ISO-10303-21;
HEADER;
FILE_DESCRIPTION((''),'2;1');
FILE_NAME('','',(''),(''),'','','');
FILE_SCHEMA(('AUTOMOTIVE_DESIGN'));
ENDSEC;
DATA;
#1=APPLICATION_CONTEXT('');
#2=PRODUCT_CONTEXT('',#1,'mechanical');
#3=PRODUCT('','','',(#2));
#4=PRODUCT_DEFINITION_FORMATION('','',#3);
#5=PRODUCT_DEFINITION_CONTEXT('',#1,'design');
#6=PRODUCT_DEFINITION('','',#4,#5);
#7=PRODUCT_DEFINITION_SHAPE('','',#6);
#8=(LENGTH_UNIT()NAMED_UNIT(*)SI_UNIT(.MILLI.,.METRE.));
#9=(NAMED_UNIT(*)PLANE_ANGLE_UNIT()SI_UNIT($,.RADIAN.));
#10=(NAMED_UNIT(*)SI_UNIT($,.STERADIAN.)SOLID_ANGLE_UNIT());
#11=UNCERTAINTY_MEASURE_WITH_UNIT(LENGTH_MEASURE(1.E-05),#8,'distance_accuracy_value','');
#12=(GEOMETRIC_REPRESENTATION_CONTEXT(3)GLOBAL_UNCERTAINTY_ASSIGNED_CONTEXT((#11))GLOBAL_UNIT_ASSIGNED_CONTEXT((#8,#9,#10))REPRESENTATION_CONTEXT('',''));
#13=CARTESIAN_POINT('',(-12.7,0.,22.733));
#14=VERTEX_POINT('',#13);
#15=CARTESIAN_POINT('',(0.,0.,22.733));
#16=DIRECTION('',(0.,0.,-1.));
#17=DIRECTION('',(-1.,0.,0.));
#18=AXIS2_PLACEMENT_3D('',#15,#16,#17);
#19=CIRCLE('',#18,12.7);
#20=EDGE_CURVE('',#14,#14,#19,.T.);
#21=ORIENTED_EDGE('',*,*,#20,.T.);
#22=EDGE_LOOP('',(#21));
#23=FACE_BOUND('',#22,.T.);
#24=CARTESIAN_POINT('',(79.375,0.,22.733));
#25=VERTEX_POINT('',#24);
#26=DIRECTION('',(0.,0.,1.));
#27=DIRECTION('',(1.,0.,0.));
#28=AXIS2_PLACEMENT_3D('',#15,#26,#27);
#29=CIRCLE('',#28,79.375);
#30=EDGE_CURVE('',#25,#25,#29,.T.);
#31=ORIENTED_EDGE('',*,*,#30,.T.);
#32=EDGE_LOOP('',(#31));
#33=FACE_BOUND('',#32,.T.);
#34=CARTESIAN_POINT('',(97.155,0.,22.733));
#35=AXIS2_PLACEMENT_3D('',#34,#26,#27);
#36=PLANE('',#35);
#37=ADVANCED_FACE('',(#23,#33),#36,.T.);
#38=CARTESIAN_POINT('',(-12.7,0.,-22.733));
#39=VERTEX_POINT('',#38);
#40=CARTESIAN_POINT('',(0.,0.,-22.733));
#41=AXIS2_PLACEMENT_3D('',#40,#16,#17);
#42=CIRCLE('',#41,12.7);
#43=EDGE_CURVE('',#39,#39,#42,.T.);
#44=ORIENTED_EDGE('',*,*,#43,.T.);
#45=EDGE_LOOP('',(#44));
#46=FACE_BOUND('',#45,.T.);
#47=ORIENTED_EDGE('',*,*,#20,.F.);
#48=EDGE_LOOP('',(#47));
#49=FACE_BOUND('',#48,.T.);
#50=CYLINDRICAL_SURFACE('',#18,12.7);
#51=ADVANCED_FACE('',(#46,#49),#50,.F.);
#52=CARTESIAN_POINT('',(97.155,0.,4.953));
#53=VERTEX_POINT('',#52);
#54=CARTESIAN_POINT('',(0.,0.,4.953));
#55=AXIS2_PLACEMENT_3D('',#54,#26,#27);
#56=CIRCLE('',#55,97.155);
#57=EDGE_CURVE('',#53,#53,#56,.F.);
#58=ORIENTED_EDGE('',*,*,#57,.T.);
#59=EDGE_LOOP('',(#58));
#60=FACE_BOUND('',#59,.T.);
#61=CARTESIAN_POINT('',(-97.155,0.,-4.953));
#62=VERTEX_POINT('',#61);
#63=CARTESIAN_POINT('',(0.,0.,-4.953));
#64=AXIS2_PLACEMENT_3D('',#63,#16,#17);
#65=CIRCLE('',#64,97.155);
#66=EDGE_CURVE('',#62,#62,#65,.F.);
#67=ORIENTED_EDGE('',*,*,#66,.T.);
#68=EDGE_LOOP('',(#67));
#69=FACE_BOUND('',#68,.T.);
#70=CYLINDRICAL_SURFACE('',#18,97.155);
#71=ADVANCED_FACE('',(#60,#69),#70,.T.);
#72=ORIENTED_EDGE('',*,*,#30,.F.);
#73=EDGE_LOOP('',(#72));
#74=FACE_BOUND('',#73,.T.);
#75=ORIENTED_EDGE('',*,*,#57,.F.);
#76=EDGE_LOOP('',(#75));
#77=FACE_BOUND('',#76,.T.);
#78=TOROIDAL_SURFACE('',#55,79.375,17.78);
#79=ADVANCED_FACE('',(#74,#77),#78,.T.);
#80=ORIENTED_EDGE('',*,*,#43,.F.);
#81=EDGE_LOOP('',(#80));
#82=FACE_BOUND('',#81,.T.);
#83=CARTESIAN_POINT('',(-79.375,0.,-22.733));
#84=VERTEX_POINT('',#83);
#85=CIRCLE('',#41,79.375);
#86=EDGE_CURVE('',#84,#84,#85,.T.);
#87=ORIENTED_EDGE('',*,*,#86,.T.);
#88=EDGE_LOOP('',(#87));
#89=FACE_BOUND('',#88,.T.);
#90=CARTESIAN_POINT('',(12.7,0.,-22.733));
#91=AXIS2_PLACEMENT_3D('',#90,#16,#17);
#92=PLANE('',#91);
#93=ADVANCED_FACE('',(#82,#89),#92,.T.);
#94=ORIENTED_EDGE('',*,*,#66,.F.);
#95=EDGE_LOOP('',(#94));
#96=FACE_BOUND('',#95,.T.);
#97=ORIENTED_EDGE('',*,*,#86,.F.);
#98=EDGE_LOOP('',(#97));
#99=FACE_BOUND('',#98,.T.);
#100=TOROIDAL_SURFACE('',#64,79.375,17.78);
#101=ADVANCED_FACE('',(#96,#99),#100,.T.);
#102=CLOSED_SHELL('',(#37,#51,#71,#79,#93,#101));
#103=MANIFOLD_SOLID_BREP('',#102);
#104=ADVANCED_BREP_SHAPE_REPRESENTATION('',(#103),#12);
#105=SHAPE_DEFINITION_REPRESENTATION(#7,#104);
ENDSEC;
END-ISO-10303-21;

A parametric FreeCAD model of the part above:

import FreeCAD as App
import Part
import Sketcher
Q = App.Units.Quantity


def edges_at(feature, points):
    """Names of the edges that pass closest to the given points."""
    edges = feature.Shape.Edges
    near = lambda p: min(range(len(edges)), key=lambda i: edges[i].distToShape(Part.Vertex(*p))[0])
    return sorted({f"Edge{near(p) + 1}" for p in points})


def add_polygon(sketch, points):
    """Adds a closed chain of lines whose ends are joined by coincident constraints."""
    first, n = sketch.GeometryCount, len(points)
    for a, b in zip(points, points[1:] + points[:1]):
        sketch.addGeometry(Part.LineSegment(App.Vector(*a, 0), App.Vector(*b, 0)), False)
    for i in range(n):
        sketch.addConstraint(Sketcher.Constraint("Coincident", first + i, 2, first + (i + 1) % n, 1))

doc = App.newDocument("Part")
body = doc.addObject("PartDesign::Body", "Body")

sketch1 = body.newObject("Sketcher::SketchObject", "Sketch")
sketch1.AttachmentSupport = (doc.getObject("XZ_Plane"), [""])
sketch1.MapMode = "FlatFace"
add_polygon(sketch1, [(13, 23), (13, -23), (97, -23), (97, 23)])
sketch1.addConstraint(Sketcher.Constraint("Vertical", 0))
sketch1.addConstraint(Sketcher.Constraint("Horizontal", 1))
sketch1.addConstraint(Sketcher.Constraint("Vertical", 2))
sketch1.addConstraint(Sketcher.Constraint("Horizontal", 3))
sketch1.addConstraint(Sketcher.Constraint("DistanceY", 0, 2, 0, 1, Q("1.79 in")))
sketch1.addConstraint(Sketcher.Constraint("DistanceX", -1, 1, 0, 2, Q("0.5 in")))
sketch1.addConstraint(Sketcher.Constraint("DistanceX", 1, 1, 1, 2, Q("3.325 in")))
sketch1.addConstraint(Sketcher.Constraint("DistanceY", 0, 2, -1, 1, Q("0.895 in")))
revolution = body.newObject("PartDesign::Revolution", "Revolution")
revolution.Profile = sketch1
revolution.ReferenceAxis = (sketch1, ["V_Axis"])
revolution.Angle = 360
doc.recompute()

fillet = body.newObject("PartDesign::Fillet", "Fillet")
fillet.Base = (revolution, edges_at(revolution, [(97.155, 0, 22.733), (97.155, 0, -22.733)]))
fillet.Radius = Q("0.7 in")

doc.recompute()
